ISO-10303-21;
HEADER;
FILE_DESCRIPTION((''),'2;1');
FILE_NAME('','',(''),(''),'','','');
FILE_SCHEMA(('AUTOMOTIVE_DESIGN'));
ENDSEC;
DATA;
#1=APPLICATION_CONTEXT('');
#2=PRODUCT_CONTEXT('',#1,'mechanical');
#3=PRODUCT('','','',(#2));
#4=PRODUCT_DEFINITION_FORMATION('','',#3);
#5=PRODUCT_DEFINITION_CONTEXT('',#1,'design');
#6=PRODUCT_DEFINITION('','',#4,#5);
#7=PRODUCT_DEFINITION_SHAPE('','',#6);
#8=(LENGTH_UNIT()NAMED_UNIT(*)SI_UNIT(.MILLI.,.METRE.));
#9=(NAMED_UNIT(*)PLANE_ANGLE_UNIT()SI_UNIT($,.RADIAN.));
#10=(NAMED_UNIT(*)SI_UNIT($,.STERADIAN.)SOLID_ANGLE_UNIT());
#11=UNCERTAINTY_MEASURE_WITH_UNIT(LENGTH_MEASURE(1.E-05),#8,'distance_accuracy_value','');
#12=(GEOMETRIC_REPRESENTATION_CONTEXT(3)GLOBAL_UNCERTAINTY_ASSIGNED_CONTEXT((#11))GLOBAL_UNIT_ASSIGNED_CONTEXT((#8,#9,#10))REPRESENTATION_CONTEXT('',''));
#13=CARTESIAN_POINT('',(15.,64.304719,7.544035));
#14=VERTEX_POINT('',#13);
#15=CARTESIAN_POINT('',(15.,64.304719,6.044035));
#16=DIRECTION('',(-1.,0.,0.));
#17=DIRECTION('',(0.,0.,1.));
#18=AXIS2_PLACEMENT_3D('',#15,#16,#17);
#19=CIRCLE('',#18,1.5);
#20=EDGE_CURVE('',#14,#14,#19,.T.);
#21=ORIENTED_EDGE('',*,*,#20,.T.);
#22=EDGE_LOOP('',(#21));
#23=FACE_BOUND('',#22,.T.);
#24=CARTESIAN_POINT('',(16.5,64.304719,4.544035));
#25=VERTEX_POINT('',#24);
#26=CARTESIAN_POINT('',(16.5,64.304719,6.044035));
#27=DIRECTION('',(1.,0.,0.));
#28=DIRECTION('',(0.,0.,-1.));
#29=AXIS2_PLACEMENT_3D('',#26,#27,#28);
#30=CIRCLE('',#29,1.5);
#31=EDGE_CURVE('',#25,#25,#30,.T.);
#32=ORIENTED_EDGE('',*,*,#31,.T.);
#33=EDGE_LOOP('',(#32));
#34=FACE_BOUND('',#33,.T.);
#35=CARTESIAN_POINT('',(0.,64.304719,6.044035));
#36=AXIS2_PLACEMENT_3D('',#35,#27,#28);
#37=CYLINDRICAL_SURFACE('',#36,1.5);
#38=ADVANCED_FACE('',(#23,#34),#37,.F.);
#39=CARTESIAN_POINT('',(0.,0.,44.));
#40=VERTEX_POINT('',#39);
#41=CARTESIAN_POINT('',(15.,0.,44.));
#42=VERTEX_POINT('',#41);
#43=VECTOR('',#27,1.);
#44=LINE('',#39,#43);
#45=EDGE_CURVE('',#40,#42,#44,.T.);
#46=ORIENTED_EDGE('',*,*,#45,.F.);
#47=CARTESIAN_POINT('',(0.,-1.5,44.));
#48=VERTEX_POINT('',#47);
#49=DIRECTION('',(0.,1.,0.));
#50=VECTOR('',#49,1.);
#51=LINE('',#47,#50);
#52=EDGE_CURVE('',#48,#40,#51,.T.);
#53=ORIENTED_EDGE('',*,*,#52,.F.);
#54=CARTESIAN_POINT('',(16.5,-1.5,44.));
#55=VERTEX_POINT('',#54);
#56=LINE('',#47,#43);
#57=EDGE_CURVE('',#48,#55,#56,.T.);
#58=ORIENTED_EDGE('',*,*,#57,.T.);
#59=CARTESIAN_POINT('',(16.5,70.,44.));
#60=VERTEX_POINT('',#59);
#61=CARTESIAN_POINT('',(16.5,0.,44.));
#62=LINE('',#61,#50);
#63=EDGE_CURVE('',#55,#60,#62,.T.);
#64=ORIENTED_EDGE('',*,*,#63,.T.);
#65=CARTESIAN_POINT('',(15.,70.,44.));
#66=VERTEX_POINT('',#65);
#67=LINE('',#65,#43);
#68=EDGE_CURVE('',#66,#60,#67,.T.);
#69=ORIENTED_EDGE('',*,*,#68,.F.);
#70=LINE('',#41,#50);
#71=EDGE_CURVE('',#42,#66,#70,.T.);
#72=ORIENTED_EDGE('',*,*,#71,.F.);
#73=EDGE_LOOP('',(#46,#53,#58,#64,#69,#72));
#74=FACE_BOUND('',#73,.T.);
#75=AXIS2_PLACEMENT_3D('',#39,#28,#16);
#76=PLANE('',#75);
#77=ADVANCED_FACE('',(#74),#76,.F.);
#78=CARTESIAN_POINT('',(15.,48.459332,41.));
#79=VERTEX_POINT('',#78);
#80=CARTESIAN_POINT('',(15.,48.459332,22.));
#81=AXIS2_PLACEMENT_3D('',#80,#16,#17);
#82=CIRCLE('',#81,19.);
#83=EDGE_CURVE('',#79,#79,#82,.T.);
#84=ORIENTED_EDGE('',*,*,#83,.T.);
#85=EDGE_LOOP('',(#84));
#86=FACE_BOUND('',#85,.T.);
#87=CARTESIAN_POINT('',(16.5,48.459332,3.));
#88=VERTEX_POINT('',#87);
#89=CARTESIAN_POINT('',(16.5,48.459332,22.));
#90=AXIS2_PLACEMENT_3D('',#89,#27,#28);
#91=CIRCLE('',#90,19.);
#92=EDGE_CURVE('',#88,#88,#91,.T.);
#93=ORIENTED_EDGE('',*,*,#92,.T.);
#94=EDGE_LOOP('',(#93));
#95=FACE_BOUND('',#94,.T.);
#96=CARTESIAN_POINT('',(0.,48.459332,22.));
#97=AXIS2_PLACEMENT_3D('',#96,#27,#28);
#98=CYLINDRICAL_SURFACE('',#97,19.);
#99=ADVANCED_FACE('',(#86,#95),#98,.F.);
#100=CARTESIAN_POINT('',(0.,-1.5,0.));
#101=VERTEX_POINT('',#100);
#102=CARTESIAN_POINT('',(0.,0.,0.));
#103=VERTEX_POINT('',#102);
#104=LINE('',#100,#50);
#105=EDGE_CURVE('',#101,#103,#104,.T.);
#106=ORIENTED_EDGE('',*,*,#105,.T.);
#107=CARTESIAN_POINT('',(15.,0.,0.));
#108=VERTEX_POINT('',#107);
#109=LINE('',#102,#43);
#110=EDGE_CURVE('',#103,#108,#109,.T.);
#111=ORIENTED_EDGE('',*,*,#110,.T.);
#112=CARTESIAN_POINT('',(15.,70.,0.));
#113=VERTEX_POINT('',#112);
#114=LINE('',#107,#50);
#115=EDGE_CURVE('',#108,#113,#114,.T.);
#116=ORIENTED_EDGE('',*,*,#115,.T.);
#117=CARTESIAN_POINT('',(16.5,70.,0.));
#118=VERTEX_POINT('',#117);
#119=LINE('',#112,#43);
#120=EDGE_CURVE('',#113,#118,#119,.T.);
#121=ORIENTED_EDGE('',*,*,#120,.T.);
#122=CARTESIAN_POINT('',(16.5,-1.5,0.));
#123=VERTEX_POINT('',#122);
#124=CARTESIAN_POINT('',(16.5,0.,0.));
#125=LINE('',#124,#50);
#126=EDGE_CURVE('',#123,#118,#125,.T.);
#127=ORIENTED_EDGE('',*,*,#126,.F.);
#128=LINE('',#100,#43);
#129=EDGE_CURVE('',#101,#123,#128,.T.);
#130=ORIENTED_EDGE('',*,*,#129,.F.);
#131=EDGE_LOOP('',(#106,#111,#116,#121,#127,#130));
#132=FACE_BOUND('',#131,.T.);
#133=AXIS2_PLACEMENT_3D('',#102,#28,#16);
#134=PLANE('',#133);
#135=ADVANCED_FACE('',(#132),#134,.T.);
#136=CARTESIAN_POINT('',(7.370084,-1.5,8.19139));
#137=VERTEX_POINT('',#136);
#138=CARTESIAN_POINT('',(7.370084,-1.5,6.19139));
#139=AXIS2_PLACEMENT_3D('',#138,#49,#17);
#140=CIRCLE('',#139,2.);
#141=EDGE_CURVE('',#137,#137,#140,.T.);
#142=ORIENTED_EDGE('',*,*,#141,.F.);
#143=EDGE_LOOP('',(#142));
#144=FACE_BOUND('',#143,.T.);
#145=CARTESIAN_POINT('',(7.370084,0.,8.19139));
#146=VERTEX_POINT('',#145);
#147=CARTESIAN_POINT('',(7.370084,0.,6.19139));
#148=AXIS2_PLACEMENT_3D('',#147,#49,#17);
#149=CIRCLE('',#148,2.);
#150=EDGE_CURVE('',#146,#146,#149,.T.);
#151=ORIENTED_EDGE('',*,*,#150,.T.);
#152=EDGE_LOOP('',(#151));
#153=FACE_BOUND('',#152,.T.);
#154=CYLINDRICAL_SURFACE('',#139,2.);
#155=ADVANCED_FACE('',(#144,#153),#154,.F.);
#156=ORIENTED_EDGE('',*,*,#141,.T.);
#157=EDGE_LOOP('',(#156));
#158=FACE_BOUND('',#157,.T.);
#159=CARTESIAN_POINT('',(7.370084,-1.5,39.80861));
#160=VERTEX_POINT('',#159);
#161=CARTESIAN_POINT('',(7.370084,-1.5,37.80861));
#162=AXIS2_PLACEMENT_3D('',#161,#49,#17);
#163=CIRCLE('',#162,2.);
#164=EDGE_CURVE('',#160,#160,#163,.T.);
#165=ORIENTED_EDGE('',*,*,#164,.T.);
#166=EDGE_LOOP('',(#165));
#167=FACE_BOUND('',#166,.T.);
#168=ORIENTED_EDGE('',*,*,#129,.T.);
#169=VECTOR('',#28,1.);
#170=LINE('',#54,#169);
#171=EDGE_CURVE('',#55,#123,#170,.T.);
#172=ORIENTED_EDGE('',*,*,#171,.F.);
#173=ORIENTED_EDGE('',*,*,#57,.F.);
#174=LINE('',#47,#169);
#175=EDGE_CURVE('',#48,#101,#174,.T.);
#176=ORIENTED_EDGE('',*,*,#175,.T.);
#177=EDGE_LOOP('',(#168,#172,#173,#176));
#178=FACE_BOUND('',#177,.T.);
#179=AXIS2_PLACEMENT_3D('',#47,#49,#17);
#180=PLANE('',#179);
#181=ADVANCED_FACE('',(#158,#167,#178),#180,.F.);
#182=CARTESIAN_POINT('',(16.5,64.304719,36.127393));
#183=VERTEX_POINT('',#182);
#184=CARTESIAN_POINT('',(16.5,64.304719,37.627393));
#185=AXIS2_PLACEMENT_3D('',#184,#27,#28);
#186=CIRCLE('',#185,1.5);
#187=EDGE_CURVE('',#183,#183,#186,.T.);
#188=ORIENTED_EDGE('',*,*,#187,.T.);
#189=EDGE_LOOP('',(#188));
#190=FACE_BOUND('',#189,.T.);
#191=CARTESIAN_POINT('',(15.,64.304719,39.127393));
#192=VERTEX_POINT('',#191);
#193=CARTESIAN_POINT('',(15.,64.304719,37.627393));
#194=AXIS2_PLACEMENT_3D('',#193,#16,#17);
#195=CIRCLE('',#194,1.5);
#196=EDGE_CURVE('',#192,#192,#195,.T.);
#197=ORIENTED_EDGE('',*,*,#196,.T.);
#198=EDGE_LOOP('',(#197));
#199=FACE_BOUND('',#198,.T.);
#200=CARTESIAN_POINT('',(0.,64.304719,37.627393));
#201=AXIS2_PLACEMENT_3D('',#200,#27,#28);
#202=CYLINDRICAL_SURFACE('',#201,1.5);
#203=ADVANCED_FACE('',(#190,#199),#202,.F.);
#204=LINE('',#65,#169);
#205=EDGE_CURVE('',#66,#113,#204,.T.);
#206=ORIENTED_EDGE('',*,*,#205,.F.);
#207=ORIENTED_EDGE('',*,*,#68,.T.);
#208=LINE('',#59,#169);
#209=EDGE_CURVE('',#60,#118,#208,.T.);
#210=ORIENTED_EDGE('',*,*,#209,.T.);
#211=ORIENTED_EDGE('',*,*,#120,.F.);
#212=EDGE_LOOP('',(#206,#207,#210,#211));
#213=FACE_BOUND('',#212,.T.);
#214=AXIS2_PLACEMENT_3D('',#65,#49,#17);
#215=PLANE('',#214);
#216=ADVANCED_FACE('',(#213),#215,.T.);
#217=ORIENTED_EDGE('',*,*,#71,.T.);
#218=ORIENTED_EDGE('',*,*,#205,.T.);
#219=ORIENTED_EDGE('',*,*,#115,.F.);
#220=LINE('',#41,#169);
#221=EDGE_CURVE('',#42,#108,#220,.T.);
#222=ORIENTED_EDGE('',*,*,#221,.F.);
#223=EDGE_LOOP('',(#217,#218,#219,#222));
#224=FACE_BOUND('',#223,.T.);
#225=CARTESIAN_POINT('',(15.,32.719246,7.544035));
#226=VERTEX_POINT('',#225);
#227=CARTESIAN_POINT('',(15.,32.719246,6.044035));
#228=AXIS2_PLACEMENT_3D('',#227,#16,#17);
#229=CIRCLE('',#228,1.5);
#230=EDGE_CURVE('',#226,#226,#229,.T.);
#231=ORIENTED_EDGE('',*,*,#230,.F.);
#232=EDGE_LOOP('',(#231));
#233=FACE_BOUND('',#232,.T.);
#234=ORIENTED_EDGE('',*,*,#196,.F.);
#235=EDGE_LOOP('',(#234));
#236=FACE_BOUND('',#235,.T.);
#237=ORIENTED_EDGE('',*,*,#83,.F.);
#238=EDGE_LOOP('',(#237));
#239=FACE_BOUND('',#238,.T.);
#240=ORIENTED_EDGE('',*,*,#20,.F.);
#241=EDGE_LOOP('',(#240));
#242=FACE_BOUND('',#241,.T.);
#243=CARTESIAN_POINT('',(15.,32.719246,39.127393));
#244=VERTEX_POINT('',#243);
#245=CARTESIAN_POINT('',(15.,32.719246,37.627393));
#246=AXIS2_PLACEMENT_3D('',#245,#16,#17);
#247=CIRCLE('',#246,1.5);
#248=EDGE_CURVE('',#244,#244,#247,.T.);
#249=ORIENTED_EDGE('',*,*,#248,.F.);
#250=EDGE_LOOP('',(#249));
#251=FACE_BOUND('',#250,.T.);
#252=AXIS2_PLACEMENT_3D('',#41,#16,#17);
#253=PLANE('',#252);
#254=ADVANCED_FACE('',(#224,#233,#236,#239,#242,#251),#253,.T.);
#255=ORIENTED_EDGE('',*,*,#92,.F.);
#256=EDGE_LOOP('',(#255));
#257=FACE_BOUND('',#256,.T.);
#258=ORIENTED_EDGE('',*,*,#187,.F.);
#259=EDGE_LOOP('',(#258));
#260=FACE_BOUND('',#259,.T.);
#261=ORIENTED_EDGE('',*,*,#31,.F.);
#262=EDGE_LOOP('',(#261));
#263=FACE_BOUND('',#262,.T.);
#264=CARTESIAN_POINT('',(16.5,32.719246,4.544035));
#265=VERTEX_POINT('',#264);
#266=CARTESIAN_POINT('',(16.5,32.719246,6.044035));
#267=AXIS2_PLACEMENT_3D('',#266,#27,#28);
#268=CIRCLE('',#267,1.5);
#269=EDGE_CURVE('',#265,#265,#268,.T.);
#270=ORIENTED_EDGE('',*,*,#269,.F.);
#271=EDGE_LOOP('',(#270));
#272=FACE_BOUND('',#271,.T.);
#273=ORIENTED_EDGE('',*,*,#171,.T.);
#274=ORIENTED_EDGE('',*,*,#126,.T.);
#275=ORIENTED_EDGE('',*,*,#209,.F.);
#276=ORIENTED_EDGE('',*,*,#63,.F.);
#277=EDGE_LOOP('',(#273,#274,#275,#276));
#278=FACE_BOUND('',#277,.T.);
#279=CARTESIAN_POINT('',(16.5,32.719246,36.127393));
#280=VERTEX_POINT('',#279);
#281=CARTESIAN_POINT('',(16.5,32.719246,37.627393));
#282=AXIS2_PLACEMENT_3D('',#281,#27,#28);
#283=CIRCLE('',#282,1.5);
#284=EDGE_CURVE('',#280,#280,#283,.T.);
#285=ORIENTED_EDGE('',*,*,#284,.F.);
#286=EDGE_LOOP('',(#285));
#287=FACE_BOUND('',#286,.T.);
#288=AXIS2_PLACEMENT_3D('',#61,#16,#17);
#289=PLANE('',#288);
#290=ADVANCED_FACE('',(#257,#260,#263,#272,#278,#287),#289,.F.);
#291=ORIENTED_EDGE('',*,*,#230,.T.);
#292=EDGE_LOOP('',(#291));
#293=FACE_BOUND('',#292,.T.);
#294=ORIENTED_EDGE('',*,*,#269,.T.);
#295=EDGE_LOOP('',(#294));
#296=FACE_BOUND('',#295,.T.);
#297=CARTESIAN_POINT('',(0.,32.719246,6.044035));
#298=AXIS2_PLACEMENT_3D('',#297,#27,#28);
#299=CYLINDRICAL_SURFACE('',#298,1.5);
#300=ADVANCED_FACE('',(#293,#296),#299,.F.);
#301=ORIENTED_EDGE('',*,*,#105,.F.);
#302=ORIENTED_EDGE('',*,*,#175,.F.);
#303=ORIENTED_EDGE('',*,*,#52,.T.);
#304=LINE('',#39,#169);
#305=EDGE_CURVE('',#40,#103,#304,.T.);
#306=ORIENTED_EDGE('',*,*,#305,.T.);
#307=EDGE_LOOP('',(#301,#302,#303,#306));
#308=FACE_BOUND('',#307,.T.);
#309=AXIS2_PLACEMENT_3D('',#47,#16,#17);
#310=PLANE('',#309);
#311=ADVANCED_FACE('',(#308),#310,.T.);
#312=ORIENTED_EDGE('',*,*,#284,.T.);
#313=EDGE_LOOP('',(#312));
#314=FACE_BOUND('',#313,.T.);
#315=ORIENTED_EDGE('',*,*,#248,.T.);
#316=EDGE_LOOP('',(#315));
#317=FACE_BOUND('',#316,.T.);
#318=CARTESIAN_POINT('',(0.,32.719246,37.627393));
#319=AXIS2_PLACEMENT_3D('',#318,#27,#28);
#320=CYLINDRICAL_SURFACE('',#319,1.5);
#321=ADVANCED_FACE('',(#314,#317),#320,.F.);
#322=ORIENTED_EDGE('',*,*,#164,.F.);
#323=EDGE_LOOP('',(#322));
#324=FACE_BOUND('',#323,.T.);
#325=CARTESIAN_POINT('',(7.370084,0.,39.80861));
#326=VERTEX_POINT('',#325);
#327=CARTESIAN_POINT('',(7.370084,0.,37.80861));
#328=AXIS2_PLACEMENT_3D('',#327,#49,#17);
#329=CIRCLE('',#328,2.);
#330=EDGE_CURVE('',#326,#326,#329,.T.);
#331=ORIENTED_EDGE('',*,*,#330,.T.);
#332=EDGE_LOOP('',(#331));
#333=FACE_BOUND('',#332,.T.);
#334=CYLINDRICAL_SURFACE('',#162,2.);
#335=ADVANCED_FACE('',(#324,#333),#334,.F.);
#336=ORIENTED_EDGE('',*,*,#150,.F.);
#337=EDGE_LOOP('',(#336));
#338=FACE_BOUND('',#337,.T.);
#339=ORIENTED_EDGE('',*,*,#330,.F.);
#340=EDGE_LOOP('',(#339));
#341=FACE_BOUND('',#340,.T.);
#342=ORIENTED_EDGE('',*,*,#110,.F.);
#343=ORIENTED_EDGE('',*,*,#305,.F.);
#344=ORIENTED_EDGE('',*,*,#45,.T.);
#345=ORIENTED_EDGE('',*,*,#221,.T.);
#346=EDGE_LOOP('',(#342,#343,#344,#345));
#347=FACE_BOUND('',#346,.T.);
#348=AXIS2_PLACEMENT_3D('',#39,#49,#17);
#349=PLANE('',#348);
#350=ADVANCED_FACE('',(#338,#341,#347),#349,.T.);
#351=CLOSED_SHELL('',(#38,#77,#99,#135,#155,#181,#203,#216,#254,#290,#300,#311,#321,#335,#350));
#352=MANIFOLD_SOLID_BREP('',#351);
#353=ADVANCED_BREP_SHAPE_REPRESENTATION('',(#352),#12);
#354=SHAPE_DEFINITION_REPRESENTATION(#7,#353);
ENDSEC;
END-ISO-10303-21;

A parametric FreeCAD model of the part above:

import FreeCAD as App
import Part
import Sketcher

V = App.Vector


def add_polygon(sketch, points):
    """Adds a closed chain of lines whose ends are joined by coincident constraints."""
    first, n = sketch.GeometryCount, len(points)
    for a, b in zip(points, points[1:] + points[:1]):
        sketch.addGeometry(Part.LineSegment(App.Vector(*a, 0), App.Vector(*b, 0)), False)
    for i in range(n):
        sketch.addConstraint(Sketcher.Constraint("Coincident", first + i, 2, first + (i + 1) % n, 1))

doc = App.newDocument("Part")
params = doc.addObject("Spreadsheet::Sheet", "Params")
for row, (alias, value) in enumerate([
    ("sketch1_width", "15 mm"),
    ("sketch1_height", "70 mm"),
    ("sketch1_width2", "16.5 mm"),
    ("pad1_length", "44 mm"),
    ("sketch2_diameter", "38 mm"),
    ("sketch3_diameter", "4 mm"),
    ("sketch4_diameter", "3 mm"),
], start=1):
    params.set(f"A{row}", alias)
    params.set(f"B{row}", "=" + value)
    params.setAlias(f"B{row}", alias)

body = doc.addObject("PartDesign::Body", "Body")

sketch1 = body.newObject("Sketcher::SketchObject", "Sketch")
sketch1.AttachmentSupport = (doc.getObject("XY_Plane"), [""])
sketch1.MapMode = "FlatFace"
add_polygon(sketch1, [(15, 0), (0, 0), (0, -1.5), (16.5, -1.5), (16.5, 70), (15, 70)])
sketch1.addConstraint([
    Sketcher.Constraint("Horizontal", 0),
    Sketcher.Constraint("Vertical", 1),
    Sketcher.Constraint("Horizontal", 2),
    Sketcher.Constraint("Vertical", 3),
    Sketcher.Constraint("Horizontal", 4),
    Sketcher.Constraint("Vertical", 5),
    Sketcher.Constraint("Coincident", 0, 2, -1, 1),
    Sketcher.Constraint("Equal", 4, 1),
    Sketcher.Constraint("DistanceX", 0, 2, 0, 1, 15.0),
    Sketcher.Constraint("DistanceY", 5, 2, 5, 1, 70.0),
    Sketcher.Constraint("DistanceX", 2, 1, 2, 2, 16.5),
])
sketch1.setExpression("Constraints[14]", "Params.sketch1_width")
sketch1.setExpression("Constraints[15]", "Params.sketch1_height")
sketch1.setExpression("Constraints[16]", "Params.sketch1_width2")
pad1 = body.newObject("PartDesign::Pad", "Pad")
pad1.Profile = sketch1
pad1.setExpression("Length", "Params.pad1_length")

sketch2 = body.newObject("Sketcher::SketchObject", "Sketch001")
sketch2.AttachmentSupport = (doc.getObject("YZ_Plane"), [""])
sketch2.MapMode = "FlatFace"
sketch2.AttachmentOffset = App.Placement(V(0, 0, 16.5), App.Rotation())
sketch2.addGeometry(Part.Circle(V(48.459332, 22, 0), V(0, 0, 1), 19), False)
sketch2.addConstraint([
    Sketcher.Constraint("Diameter", 0, 38.0),
    Sketcher.Constraint("DistanceY", -1, 1, 0, 3, 22.0),
    Sketcher.Constraint("DistanceX", -1, 1, 0, 3, 48.459332),
])
sketch2.setExpression("Constraints[0]", "Params.sketch2_diameter")
pocket1 = body.newObject("PartDesign::Pocket", "Pocket")
pocket1.Profile = sketch2
pocket1.Type = "ThroughAll"

sketch3 = body.newObject("Sketcher::SketchObject", "Sketch002")
sketch3.AttachmentSupport = (doc.getObject("XZ_Plane"), [""])
sketch3.MapMode = "FlatFace"
sketch3.addGeometry([
    Part.Circle(V(7.370084, 6.19139, 0), V(0, 0, 1), 2),
    Part.Circle(V(7.370084, 37.80861, 0), V(0, 0, 1), 2),
], False)
sketch3.addConstraint([
    Sketcher.Constraint("Equal", 0, 1),
    Sketcher.Constraint("Vertical", 0, 3, 1, 3),
    Sketcher.Constraint("Diameter", 0, 4.0),
    Sketcher.Constraint("DistanceY", -1, 1, 0, 3, 6.19139),
    Sketcher.Constraint("DistanceY", -1, 1, 1, 3, 37.80861),
    Sketcher.Constraint("DistanceX", -1, 1, 0, 3, 7.370084),
])
sketch3.setExpression("Constraints[2]", "Params.sketch3_diameter")
pocket2 = body.newObject("PartDesign::Pocket", "Pocket001")
pocket2.Profile = sketch3
pocket2.Type = "ThroughAll"
pocket2.Reversed = True

sketch4 = body.newObject("Sketcher::SketchObject", "Sketch003")
sketch4.AttachmentSupport = (doc.getObject("YZ_Plane"), [""])
sketch4.MapMode = "FlatFace"
sketch4.AttachmentOffset = App.Placement(V(0, 0, 16.5), App.Rotation())
sketch4.addGeometry([
    Part.Circle(V(64.304719, 37.627393, 0), V(0, 0, 1), 1.5),
    Part.Circle(V(64.304719, 6.044035, 0), V(0, 0, 1), 1.5),
    Part.Circle(V(32.719246, 37.627393, 0), V(0, 0, 1), 1.5),
    Part.Circle(V(32.719246, 6.044035, 0), V(0, 0, 1), 1.5),
], False)
sketch4.addConstraint([
    Sketcher.Constraint("Equal", 0, 1),
    Sketcher.Constraint("Equal", 1, 2),
    Sketcher.Constraint("Equal", 2, 3),
    Sketcher.Constraint("Horizontal", 0, 3, 2, 3),
    Sketcher.Constraint("Horizontal", 1, 3, 3, 3),
    Sketcher.Constraint("Vertical", 0, 3, 1, 3),
    Sketcher.Constraint("Vertical", 2, 3, 3, 3),
    Sketcher.Constraint("Diameter", 0, 3.0),
    Sketcher.Constraint("DistanceX", -1, 1, 0, 3, 64.304719),
    Sketcher.Constraint("DistanceY", -1, 1, 0, 3, 37.627393),
    Sketcher.Constraint("DistanceY", -1, 1, 1, 3, 6.044035),
    Sketcher.Constraint("DistanceX", -1, 1, 2, 3, 32.719246),
])
sketch4.setExpression("Constraints[7]", "Params.sketch4_diameter")
pocket3 = body.newObject("PartDesign::Pocket", "Pocket002")
pocket3.Profile = sketch4
pocket3.Type = "ThroughAll"

doc.recompute()
